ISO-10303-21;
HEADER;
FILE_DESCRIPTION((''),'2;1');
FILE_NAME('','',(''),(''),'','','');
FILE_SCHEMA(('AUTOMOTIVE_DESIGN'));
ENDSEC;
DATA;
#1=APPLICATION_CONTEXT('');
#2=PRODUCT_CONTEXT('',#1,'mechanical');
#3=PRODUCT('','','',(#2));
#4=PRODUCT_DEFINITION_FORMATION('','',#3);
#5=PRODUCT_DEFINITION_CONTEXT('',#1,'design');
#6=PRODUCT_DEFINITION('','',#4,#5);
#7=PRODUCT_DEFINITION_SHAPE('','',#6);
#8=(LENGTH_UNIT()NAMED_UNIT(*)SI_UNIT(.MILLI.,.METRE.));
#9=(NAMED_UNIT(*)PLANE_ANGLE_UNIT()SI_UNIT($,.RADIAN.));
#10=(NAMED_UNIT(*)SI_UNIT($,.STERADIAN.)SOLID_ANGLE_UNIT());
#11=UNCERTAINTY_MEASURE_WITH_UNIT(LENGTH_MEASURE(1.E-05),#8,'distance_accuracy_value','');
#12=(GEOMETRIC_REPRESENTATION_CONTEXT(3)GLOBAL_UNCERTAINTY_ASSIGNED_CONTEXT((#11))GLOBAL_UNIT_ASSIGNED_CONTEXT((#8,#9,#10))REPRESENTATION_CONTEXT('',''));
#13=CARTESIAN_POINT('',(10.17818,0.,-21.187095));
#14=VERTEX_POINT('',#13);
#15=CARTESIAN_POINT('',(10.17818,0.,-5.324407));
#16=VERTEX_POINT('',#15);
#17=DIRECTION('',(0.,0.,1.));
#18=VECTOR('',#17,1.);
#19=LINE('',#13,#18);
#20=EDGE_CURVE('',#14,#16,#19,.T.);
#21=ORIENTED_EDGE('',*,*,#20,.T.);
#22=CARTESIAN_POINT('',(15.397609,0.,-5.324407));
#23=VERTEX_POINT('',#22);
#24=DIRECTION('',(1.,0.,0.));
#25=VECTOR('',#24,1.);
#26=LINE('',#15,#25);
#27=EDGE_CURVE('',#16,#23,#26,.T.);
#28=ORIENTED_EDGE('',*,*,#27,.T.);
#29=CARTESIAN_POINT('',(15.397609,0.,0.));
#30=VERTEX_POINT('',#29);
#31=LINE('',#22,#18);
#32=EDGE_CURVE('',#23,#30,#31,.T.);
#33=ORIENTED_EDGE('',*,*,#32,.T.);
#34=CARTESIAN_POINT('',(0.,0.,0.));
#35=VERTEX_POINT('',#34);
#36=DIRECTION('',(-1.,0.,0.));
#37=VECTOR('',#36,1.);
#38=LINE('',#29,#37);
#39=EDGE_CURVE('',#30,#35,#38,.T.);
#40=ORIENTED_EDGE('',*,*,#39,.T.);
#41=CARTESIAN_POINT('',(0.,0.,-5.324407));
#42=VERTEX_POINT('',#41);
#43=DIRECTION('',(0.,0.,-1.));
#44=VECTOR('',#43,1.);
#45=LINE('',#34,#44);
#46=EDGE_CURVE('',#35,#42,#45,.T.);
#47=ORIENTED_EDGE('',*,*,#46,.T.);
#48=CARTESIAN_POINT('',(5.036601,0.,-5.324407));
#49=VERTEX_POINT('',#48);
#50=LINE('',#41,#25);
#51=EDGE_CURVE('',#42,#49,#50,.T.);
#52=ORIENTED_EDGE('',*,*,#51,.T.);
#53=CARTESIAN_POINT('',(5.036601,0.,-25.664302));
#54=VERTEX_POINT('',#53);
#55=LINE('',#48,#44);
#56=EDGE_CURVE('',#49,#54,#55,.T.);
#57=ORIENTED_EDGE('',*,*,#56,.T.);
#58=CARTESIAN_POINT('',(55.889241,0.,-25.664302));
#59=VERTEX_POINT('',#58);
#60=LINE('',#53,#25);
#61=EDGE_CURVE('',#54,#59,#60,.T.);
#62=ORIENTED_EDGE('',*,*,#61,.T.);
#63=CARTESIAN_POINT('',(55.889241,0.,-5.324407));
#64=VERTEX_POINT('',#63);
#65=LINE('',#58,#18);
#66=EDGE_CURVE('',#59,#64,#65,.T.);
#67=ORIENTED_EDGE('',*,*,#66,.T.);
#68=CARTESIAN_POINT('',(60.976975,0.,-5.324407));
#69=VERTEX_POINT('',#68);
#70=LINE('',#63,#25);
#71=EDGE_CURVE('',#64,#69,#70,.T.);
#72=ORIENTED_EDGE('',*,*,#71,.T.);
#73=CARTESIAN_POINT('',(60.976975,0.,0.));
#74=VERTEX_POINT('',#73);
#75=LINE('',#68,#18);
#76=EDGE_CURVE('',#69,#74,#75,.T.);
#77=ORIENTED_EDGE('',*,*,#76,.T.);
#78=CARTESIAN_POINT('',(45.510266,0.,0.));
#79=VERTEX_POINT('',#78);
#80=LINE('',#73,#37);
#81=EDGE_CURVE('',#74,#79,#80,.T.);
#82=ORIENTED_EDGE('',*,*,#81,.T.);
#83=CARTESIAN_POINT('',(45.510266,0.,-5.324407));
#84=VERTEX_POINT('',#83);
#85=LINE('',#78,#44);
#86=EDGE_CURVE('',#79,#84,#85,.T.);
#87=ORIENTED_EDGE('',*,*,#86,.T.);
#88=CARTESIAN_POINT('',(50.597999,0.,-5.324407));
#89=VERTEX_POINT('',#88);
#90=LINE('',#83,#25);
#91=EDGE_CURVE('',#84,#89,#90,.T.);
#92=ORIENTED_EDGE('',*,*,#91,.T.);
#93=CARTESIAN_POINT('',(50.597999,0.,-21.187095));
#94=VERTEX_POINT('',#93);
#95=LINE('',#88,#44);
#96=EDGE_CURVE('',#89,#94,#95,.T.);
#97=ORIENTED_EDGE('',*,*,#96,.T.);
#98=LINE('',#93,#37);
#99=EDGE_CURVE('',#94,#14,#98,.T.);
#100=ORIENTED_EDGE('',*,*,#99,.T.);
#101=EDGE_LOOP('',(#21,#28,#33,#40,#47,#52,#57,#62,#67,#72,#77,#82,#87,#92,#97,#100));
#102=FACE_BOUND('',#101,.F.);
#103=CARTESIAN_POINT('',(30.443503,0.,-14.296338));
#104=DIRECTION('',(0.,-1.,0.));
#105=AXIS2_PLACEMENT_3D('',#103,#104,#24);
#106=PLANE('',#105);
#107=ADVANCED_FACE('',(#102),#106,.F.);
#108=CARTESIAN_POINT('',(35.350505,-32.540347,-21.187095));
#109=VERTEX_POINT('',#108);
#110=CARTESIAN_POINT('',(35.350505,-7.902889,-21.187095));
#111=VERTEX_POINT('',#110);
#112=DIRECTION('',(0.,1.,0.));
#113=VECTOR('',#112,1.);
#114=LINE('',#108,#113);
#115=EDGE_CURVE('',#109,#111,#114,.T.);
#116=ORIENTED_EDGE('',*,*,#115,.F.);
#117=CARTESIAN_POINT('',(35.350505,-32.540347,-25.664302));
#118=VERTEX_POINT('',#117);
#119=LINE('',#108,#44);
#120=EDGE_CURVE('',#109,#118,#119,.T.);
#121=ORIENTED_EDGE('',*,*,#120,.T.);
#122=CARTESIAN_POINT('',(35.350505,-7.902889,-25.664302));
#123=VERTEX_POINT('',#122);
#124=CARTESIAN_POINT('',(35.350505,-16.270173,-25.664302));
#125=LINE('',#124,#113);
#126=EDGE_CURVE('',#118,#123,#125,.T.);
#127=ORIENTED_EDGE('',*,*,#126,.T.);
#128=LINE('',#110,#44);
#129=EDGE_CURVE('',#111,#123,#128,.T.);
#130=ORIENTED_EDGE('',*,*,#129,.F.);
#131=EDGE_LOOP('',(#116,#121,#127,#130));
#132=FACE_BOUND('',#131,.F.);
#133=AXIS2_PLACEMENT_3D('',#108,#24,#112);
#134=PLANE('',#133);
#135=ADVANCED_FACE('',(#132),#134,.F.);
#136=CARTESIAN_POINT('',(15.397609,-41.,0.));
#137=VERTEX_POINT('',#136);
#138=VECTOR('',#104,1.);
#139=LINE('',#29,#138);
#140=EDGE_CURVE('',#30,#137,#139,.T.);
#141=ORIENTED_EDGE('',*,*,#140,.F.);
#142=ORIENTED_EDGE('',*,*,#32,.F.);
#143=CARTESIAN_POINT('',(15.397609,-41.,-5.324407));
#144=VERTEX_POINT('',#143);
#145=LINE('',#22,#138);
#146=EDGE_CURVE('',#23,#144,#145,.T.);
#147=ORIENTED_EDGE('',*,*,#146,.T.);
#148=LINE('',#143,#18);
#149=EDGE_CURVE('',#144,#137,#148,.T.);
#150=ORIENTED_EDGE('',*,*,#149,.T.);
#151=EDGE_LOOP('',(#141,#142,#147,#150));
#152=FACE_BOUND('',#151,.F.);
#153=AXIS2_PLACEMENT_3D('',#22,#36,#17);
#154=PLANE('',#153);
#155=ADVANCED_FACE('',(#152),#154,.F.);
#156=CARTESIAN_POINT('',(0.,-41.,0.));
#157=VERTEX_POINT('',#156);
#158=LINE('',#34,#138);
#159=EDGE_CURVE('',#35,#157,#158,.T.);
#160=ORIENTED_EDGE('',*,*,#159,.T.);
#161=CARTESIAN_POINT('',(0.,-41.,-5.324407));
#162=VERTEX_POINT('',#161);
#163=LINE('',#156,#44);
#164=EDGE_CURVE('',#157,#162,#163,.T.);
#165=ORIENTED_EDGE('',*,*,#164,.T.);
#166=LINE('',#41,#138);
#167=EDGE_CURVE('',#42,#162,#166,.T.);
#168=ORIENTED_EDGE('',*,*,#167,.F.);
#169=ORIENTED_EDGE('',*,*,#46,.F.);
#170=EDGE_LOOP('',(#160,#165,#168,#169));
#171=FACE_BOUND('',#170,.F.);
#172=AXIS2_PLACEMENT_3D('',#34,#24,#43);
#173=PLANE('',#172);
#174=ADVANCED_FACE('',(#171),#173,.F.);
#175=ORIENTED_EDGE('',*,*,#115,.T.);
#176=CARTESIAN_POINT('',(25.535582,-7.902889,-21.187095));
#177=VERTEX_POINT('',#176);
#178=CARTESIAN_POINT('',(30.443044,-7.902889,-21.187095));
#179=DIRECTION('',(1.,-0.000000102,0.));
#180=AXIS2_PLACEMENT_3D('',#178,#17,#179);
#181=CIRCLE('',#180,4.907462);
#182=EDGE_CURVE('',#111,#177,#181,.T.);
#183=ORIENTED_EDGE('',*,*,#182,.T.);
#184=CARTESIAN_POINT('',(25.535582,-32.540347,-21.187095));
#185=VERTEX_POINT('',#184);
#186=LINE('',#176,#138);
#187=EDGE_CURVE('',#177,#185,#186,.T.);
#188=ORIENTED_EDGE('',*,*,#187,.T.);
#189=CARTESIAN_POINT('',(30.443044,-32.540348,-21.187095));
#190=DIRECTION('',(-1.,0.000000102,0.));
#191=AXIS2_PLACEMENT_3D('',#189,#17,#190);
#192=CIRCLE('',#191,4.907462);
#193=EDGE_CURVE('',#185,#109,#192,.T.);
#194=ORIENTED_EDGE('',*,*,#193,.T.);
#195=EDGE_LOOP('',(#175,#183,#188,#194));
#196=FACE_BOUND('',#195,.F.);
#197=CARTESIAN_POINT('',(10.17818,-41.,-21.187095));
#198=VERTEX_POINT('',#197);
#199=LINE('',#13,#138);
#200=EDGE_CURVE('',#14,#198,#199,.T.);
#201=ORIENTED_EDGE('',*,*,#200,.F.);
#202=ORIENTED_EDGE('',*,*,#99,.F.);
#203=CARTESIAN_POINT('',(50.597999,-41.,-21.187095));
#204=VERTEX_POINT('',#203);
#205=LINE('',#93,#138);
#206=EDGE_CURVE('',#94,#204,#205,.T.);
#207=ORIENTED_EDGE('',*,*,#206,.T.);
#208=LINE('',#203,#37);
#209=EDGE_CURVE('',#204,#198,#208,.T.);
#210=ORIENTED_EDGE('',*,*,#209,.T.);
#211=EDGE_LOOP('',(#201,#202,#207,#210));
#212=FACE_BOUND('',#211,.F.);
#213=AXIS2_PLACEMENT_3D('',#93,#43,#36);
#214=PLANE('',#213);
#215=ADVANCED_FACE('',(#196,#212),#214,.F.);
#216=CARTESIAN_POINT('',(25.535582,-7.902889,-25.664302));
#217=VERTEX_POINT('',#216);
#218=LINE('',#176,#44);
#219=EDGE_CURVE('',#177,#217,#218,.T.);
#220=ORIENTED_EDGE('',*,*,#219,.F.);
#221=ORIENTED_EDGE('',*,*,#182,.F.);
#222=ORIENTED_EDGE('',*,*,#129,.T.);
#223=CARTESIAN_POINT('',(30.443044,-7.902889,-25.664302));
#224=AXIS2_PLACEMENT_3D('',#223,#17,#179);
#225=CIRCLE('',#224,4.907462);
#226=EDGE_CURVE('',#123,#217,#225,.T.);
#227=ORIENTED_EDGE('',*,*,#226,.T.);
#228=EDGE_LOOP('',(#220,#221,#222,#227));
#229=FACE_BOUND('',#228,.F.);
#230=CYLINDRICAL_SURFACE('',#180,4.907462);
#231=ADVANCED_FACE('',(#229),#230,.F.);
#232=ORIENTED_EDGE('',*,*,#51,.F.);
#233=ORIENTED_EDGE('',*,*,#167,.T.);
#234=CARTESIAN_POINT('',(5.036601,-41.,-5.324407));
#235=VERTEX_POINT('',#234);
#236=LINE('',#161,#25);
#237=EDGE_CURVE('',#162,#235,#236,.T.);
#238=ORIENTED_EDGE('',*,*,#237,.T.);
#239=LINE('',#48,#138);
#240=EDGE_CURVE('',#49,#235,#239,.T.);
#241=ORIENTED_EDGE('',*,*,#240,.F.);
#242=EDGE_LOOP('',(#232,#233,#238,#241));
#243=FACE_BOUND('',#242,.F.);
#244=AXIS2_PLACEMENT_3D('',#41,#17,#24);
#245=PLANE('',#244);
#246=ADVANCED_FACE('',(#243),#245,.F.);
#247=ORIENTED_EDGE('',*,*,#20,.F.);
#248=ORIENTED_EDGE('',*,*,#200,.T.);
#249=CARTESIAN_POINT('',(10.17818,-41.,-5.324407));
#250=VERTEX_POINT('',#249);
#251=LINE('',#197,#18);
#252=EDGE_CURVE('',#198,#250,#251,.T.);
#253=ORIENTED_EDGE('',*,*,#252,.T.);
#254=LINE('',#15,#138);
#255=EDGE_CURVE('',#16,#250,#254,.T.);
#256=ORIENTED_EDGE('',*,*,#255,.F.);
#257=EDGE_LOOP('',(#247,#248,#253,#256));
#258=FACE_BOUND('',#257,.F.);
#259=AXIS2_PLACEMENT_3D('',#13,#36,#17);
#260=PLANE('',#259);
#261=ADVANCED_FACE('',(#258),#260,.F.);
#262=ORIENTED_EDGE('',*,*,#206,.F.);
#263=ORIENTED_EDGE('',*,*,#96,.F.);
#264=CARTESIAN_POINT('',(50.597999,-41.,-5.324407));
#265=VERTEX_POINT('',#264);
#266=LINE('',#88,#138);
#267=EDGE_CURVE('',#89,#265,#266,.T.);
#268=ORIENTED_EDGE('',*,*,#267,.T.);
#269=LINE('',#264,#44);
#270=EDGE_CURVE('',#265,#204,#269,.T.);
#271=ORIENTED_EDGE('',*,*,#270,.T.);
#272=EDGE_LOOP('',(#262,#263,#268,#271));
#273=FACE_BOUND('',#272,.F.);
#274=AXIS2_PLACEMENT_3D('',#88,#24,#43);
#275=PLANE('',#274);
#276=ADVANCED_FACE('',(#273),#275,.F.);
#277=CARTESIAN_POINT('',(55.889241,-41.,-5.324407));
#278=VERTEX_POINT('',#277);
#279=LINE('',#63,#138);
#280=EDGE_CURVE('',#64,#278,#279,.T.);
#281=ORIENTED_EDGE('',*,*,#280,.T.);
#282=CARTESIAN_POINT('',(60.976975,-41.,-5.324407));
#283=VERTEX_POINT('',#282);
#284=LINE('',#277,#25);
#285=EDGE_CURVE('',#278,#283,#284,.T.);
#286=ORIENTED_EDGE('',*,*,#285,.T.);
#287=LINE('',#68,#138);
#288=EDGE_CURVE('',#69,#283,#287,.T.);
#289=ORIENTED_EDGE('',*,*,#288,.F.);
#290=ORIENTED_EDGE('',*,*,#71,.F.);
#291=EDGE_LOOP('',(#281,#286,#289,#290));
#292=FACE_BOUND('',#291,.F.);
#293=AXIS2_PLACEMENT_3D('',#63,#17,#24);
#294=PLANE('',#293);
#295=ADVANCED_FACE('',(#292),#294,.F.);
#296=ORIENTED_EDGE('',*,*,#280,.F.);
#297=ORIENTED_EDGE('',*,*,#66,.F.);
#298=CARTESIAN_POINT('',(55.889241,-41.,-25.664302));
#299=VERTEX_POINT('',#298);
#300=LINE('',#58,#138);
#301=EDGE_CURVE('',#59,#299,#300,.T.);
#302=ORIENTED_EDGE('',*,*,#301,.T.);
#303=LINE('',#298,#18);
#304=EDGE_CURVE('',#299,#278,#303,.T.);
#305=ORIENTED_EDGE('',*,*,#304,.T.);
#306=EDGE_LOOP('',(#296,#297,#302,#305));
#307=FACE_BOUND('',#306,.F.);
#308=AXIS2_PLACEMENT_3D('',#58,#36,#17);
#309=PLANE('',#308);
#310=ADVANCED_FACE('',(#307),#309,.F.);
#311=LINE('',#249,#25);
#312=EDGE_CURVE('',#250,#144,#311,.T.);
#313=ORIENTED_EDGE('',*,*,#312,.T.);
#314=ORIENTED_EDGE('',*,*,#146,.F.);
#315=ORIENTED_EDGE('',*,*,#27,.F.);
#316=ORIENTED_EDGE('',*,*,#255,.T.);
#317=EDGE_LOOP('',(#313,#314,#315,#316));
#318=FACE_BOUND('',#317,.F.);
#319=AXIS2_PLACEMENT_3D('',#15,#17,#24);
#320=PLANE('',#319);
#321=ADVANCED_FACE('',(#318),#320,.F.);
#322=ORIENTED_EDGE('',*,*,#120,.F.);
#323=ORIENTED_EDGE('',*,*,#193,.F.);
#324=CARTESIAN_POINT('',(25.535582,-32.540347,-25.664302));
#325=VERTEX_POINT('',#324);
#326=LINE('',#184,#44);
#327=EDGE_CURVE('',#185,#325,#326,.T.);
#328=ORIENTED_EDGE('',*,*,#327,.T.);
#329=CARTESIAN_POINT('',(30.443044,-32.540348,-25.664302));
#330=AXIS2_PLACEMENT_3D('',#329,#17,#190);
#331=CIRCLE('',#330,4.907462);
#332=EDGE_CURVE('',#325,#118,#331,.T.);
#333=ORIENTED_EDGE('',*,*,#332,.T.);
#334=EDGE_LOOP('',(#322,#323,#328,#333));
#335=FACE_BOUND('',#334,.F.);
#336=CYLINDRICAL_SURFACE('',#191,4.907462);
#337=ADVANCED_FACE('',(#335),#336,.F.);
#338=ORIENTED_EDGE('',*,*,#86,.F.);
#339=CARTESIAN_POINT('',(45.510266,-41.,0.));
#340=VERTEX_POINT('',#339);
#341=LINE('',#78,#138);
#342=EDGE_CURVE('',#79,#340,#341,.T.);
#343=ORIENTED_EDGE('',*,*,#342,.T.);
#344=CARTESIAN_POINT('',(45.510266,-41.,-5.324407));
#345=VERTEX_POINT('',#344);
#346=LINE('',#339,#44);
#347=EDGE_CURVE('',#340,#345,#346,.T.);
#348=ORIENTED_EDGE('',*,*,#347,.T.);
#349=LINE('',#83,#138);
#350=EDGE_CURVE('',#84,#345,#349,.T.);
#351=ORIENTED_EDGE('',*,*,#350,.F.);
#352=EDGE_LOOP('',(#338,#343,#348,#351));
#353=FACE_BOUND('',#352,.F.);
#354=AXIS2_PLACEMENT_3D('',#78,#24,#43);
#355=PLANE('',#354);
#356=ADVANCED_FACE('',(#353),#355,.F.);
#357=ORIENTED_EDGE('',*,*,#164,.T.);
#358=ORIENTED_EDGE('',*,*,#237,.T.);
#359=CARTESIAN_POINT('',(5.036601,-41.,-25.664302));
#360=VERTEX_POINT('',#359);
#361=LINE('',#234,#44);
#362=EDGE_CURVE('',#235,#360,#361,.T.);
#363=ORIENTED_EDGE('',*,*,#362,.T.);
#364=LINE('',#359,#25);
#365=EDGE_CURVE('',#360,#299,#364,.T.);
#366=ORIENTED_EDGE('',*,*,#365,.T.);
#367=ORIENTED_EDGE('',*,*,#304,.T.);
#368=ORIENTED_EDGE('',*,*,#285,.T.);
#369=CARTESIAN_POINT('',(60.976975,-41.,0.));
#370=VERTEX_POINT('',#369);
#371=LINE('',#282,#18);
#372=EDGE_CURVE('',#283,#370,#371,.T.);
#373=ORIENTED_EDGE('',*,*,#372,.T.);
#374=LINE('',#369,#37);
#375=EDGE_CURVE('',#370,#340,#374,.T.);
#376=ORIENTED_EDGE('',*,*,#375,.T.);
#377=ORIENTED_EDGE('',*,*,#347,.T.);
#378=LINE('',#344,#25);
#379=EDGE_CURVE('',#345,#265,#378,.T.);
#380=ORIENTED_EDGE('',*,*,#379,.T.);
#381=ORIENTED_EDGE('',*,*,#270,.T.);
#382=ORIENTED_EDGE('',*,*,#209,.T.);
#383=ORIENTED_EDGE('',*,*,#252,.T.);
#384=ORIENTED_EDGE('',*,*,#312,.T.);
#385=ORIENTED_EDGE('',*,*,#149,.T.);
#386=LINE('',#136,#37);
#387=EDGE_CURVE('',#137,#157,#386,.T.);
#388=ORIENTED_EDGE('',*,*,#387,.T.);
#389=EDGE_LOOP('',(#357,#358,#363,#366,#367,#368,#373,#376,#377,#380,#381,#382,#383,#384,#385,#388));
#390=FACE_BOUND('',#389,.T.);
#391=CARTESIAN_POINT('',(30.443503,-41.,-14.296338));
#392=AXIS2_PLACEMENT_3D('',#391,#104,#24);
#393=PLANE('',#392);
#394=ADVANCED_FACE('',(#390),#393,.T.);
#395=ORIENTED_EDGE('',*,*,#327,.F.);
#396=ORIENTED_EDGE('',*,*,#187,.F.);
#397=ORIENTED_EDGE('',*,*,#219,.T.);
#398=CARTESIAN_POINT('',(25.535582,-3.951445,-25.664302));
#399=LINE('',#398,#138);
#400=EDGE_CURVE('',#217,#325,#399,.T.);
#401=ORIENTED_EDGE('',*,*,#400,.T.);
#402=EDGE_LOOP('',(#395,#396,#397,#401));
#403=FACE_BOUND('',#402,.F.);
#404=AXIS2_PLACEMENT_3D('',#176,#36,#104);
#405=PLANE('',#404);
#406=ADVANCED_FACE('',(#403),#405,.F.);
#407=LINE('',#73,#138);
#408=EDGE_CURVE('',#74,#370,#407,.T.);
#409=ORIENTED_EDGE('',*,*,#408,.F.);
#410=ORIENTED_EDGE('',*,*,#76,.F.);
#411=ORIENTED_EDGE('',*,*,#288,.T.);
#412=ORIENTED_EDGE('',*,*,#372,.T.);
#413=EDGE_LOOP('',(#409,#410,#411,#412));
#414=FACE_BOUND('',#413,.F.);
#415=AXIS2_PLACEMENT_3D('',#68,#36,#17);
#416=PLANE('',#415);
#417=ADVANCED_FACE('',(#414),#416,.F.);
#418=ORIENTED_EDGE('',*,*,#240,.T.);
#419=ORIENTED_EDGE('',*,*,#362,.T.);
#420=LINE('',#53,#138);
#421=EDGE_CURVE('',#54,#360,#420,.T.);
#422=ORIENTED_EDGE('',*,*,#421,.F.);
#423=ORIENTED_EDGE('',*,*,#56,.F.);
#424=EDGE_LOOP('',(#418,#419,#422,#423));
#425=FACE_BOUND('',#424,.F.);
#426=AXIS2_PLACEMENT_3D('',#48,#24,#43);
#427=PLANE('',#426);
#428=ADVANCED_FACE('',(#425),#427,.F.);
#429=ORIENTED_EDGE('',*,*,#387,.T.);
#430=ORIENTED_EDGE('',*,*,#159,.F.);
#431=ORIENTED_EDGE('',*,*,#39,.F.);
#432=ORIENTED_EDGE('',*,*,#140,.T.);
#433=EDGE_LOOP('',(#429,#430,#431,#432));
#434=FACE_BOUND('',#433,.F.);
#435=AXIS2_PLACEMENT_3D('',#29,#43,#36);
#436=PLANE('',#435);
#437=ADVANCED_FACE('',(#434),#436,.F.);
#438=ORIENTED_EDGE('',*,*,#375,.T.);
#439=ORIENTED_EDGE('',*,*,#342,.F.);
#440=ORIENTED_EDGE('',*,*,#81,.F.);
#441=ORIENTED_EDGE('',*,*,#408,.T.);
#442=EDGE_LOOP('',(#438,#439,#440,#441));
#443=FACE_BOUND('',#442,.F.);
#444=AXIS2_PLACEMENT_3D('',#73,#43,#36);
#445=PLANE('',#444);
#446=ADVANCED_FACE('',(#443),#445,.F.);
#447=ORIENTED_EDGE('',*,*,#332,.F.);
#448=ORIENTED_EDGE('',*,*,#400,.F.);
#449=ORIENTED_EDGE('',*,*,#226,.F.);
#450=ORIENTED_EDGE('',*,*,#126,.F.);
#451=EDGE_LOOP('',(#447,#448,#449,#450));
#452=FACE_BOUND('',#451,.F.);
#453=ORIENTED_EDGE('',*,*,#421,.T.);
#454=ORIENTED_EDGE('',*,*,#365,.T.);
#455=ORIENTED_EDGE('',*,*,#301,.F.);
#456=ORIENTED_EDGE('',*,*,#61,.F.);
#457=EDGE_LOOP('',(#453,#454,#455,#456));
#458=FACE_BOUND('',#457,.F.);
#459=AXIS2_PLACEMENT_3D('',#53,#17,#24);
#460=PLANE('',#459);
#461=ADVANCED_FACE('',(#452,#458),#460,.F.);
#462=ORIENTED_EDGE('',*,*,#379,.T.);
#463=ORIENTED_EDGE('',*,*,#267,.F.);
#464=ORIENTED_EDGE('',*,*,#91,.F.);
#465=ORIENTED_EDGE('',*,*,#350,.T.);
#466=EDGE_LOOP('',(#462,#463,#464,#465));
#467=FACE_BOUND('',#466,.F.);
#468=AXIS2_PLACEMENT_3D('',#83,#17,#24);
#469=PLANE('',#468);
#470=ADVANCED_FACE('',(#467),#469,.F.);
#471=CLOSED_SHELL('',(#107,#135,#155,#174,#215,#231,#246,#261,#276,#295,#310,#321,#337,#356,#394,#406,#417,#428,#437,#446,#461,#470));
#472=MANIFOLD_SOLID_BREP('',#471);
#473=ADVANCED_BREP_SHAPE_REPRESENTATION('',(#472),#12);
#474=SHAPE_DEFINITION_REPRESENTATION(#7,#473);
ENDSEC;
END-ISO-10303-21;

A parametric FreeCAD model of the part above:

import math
import FreeCAD as App
import Part
import Sketcher

V = App.Vector
Q = App.Units.Quantity


def add_polygon(sketch, points):
    """Adds a closed chain of lines whose ends are joined by coincident constraints."""
    first, n = sketch.GeometryCount, len(points)
    for a, b in zip(points, points[1:] + points[:1]):
        sketch.addGeometry(Part.LineSegment(App.Vector(*a, 0), App.Vector(*b, 0)), False)
    for i in range(n):
        sketch.addConstraint(Sketcher.Constraint("Coincident", first + i, 2, first + (i + 1) % n, 1))

doc = App.newDocument("Part")
params = doc.addObject("Spreadsheet::Sheet", "Params")
for row, (alias, value) in enumerate([
    ("pad1_length", "41 mm"),
    ("pocket1_length", "25 mm"),
], start=1):
    params.set(f"A{row}", alias)
    params.set(f"B{row}", "=" + value)
    params.setAlias(f"B{row}", alias)

body = doc.addObject("PartDesign::Body", "Body")

# Sketch on XZ plane
sketch1 = body.newObject("Sketcher::SketchObject", "Sketch")
sketch1.AttachmentSupport = (doc.getObject("XZ_Plane"), [""])
sketch1.MapMode = "FlatFace"
add_polygon(sketch1, [(15.397609, 0), (0, 0), (0, -5.324407), (5.036601, -5.324407), (5.036601, -25.664302), (55.889241, -25.664302), (55.889241, -5.324407), (60.976975, -5.324407), (60.976975, 0), (45.510266, 0), (45.510266, -5.324407), (50.597999, -5.324407), (50.597999, -21.187095), (10.17818, -21.187095), (10.17818, -5.324407), (15.397609, -5.324407)])  # lines 0-15
sketch1.addConstraint([
    Sketcher.Constraint("Horizontal", 0),
    Sketcher.Constraint("Vertical", 1),
    Sketcher.Constraint("Horizontal", 2),
    Sketcher.Constraint("Vertical", 3),
    Sketcher.Constraint("Horizontal", 4),
    Sketcher.Constraint("Vertical", 5),
    Sketcher.Constraint("Horizontal", 6),
    Sketcher.Constraint("Vertical", 7),
    Sketcher.Constraint("Horizontal", 8),
    Sketcher.Constraint("Vertical", 9),
    Sketcher.Constraint("Horizontal", 10),
    Sketcher.Constraint("Vertical", 11),
    Sketcher.Constraint("Horizontal", 12),
    Sketcher.Constraint("Vertical", 13),
    Sketcher.Constraint("Horizontal", 14),
    Sketcher.Constraint("Vertical", 15),
    Sketcher.Constraint("Coincident", 0, 2, -1, 1),
    Sketcher.Constraint("PointOnObject", 7, 2, -1),
    Sketcher.Constraint("Horizontal", 2, 2, 5, 2),
    Sketcher.Constraint("Horizontal", 6, 2, 9, 2),
    Sketcher.Constraint("Horizontal", 10, 2, 13, 2),
    Sketcher.Constraint("Equal", 6, 10),
    Sketcher.Constraint("DistanceX", 2, 1, 2, 2, Q("5.036601 mm")),
    Sketcher.Constraint("DistanceX", -1, 1, 10, 2, Q("50.597999 mm")),
    Sketcher.Constraint("DistanceX", 0, 2, 0, 1, Q("15.397609 mm")),
    Sketcher.Constraint("DistanceX", 4, 1, 4, 2, Q("50.85264 mm")),
    Sketcher.Constraint("DistanceX", 8, 2, 8, 1, Q("15.466709 mm")),
    Sketcher.Constraint("DistanceX", 12, 2, 12, 1, Q("40.419819 mm")),
    Sketcher.Constraint("DistanceY", 3, 2, -1, 1, Q("25.664302 mm")),
    Sketcher.Constraint("DistanceY", 1, 2, 1, 1, Q("5.324407 mm")),
    Sketcher.Constraint("DistanceY", 11, 2, 11, 1, Q("15.862688 mm")),
])
pad1 = body.newObject("PartDesign::Pad", "Pad")
pad1.Profile = sketch1
pad1.setExpression("Length", "Params.pad1_length")

# Sketch on XY plane
sketch2 = body.newObject("Sketcher::SketchObject", "Sketch001")
sketch2.AttachmentSupport = (doc.getObject("XY_Plane"), [""])
sketch2.MapMode = "FlatFace"
sketch2.AttachmentOffset = App.Placement(V(0, 0, -21.187095), App.Rotation())
sketch2.addGeometry([
    Part.ArcOfCircle(Part.Circle(V(30.443044, -7.902889, 0), V(0, 0, 1), 4.907462), math.radians(-0.000006), math.radians(180.000006)),
    Part.LineSegment(V(25.535582, -7.902889, 0), V(25.535582, -32.540347, 0)),
    Part.ArcOfCircle(Part.Circle(V(30.443044, -32.540348, 0), V(0, 0, 1), 4.907462), math.radians(179.999994), math.radians(360.000006)),
    Part.LineSegment(V(35.350505, -32.540347, 0), V(35.350505, -7.902889, 0)),
], False)
sketch2.addConstraint([
    Sketcher.Constraint("Tangent", 0, 2, 1, 1),
    Sketcher.Constraint("Tangent", 1, 2, 2, 1),
    Sketcher.Constraint("Tangent", 2, 2, 3, 1),
    Sketcher.Constraint("Tangent", 3, 2, 0, 1),
    Sketcher.Constraint("Vertical", 1),
    Sketcher.Constraint("Vertical", 3),
    Sketcher.Constraint("Radius", 0, Q("4.907462 mm")),
    Sketcher.Constraint("DistanceY", 1, 2, 1, 1, Q("24.637458 mm")),
    Sketcher.Constraint("DistanceY", 0, 3, -1, 1, Q("7.902889 mm")),
    Sketcher.Constraint("DistanceX", -1, 1, 0, 3, Q("30.443044 mm")),
])
pocket1 = body.newObject("PartDesign::Pocket", "Pocket")
pocket1.Profile = sketch2
pocket1.setExpression("Length", "Params.pocket1_length")

doc.recompute()
